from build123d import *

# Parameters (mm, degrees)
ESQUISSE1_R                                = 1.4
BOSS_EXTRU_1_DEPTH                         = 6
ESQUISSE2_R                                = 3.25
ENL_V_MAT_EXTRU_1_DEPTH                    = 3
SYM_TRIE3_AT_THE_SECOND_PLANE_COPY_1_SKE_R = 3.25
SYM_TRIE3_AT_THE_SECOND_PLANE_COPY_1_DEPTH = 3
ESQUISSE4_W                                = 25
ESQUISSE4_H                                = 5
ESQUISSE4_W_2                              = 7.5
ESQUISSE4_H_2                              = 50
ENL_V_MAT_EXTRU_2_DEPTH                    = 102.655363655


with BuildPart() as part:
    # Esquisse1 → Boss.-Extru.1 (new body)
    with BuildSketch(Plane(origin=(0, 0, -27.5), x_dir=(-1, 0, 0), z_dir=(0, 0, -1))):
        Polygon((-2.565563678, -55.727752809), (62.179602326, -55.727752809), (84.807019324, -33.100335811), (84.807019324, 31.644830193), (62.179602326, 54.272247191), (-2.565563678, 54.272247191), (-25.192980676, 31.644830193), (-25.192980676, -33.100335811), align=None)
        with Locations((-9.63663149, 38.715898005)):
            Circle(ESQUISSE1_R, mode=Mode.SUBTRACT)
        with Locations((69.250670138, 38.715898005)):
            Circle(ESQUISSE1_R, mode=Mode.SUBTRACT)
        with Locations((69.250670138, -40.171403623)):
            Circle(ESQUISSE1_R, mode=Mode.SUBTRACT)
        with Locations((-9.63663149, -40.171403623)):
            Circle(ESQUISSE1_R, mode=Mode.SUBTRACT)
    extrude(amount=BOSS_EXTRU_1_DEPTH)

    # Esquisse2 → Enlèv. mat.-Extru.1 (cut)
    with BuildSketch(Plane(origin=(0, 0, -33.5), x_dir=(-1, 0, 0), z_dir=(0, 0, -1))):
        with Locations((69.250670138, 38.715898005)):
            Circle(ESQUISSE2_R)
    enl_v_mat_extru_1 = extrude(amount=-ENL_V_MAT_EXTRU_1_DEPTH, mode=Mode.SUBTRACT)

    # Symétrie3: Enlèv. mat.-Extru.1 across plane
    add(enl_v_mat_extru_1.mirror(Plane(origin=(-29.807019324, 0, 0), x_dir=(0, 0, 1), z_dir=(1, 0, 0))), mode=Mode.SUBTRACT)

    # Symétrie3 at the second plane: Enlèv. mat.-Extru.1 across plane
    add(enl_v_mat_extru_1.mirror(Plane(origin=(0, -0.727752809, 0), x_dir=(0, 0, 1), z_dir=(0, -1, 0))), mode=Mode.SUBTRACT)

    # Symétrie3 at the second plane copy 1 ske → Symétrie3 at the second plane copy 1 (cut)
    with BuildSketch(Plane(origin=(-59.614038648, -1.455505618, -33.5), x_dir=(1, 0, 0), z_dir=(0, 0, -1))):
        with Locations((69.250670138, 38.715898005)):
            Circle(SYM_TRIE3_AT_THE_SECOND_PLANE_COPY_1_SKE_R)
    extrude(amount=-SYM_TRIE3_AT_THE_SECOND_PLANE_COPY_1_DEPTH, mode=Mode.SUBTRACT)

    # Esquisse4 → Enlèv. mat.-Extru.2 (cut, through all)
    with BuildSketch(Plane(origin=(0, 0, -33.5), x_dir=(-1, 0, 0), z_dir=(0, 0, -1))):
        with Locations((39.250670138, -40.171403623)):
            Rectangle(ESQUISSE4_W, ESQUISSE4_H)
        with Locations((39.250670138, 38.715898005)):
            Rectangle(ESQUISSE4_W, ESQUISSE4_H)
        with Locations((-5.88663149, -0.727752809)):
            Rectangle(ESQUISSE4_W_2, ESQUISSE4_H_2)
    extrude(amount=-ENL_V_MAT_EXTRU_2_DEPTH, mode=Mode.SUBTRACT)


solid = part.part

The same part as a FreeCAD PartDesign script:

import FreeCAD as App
import Part
import Sketcher

V = App.Vector


def add_polygon(sketch, points):
    """Adds a closed chain of lines whose ends are joined by coincident constraints."""
    first, n = sketch.GeometryCount, len(points)
    for a, b in zip(points, points[1:] + points[:1]):
        sketch.addGeometry(Part.LineSegment(App.Vector(*a, 0), App.Vector(*b, 0)), False)
    for i in range(n):
        sketch.addConstraint(Sketcher.Constraint("Coincident", first + i, 2, first + (i + 1) % n, 1))

doc = App.newDocument("Part")
body = doc.addObject("PartDesign::Body", "Body")

# Sketch on XY plane
sketch1 = body.newObject("Sketcher::SketchObject", "Sketch")
sketch1.AttachmentSupport = (doc.getObject("XY_Plane"), [""])
sketch1.MapMode = "FlatFace"
sketch1.AttachmentOffset = App.Placement(V(0, 0, -27.5), App.Rotation())
add_polygon(sketch1, [(2.565564, -55.727753), (-62.179602, -55.727753), (-84.807019, -33.100336), (-84.807019, 31.64483), (-62.179602, 54.272247), (2.565564, 54.272247), (25.192981, 31.64483), (25.192981, -33.100336)])  # lines 0-7
sketch1.addGeometry(Part.Circle(V(9.636631, -40.171404, 0), V(0, 0, 1), 1.4), False)  # 8
sketch1.addGeometry(Part.Circle(V(-69.25067, -40.171404, 0), V(0, 0, 1), 1.4), False)  # 9
sketch1.addGeometry(Part.Circle(V(9.636631, 38.715898, 0), V(0, 0, 1), 1.4), False)  # 10
sketch1.addGeometry(Part.Circle(V(-69.25067, 38.715898, 0), V(0, 0, 1), 1.4), False)  # 11
sketch1.addConstraint([
    Sketcher.Constraint("Horizontal", 0),
    Sketcher.Constraint("Vertical", 2),
    Sketcher.Constraint("Horizontal", 4),
    Sketcher.Constraint("Vertical", 6),
    Sketcher.Constraint("Equal", 8, 9),
    Sketcher.Constraint("Equal", 9, 10),
    Sketcher.Constraint("Equal", 10, 11),
    Sketcher.Constraint("Perpendicular", 1, 3),
    Sketcher.Constraint("Perpendicular", 3, 5),
    Sketcher.Constraint("Perpendicular", 5, 7),
    Sketcher.Constraint("Horizontal", 8, 3, 9, 3),
    Sketcher.Constraint("Horizontal", 10, 3, 11, 3),
    Sketcher.Constraint("Horizontal", 2, 2, 5, 2),
    Sketcher.Constraint("Horizontal", 1, 2, 6, 2),
    Sketcher.Constraint("Vertical", 8, 3, 10, 3),
    Sketcher.Constraint("Vertical", 9, 3, 11, 3),
    Sketcher.Constraint("Vertical", 0, 2, 3, 2),
    Sketcher.Constraint("Vertical", 4, 2, 7, 2),
    Sketcher.Constraint("Equal", 4, 2),
    Sketcher.Constraint("Diameter", 8, 2.8),
    Sketcher.Constraint("Distance", 1, 32.0),
    Sketcher.Constraint("DistanceY", -1, 1, 10, 3, 38.715898),
    Sketcher.Constraint("DistanceX", 9, 3, 8, 3, 78.887302),
    Sketcher.Constraint("DistanceY", 8, 3, 10, 3, 78.887302),
    Sketcher.Constraint("DistanceX", 0, 2, 0, 1, 64.745166),
    Sketcher.Constraint("DistanceX", -1, 1, 8, 3, 9.636631),
    Sketcher.Constraint("DistanceX", 1, 2, -1, 1, 84.807019),
    Sketcher.Constraint("DistanceY", -1, 1, 2, 2, 31.64483),
])
pad1 = body.newObject("PartDesign::Pad", "Pad")
pad1.Profile = sketch1
pad1.Length = 6
pad1.Reversed = True

# Sketch on XY plane
sketch2 = body.newObject("Sketcher::SketchObject", "Sketch001")
sketch2.AttachmentSupport = (doc.getObject("XY_Plane"), [""])
sketch2.MapMode = "FlatFace"
sketch2.AttachmentOffset = App.Placement(V(0, 0, -33.5), App.Rotation())
sketch2.addGeometry(Part.Circle(V(-69.25067, 38.715898, 0), V(0, 0, 1), 3.25), False)
sketch2.addConstraint([
    Sketcher.Constraint("Diameter", 0, 6.5),
    Sketcher.Constraint("DistanceY", -1, 1, 0, 3, 38.715898),
    Sketcher.Constraint("DistanceX", 0, 3, -1, 1, 69.25067),
])
pocket1 = body.newObject("PartDesign::Pocket", "Pocket")
pocket1.Profile = sketch2
pocket1.Length = 3
pocket1.Reversed = True
doc.recompute()

datumplane = body.newObject("PartDesign::Plane", "DatumPlane")
datumplane.AttachmentSupport = (doc.getObject("YZ_Plane"), [""])
datumplane.MapMode = "FlatFace"
datumplane.AttachmentOffset = App.Placement(V(0, 0, -29.807019), App.Rotation())
mirrored = body.newObject("PartDesign::Mirrored", "Mirrored")
mirrored.Originals = [pocket1]
mirrored.MirrorPlane = (datumplane, [""])
body.Tip = mirrored
doc.recompute()

datumplane2 = body.newObject("PartDesign::Plane", "DatumPlane001")
datumplane2.AttachmentSupport = (doc.getObject("XZ_Plane"), [""])
datumplane2.MapMode = "FlatFace"
datumplane2.AttachmentOffset = App.Placement(V(0, 0, 0.727753), App.Rotation())
mirrored2 = body.newObject("PartDesign::Mirrored", "Mirrored001")
mirrored2.Originals = [pocket1]
mirrored2.MirrorPlane = (datumplane2, [""])
body.Tip = mirrored2

# Sketch on XY plane
sketch3 = body.newObject("Sketcher::SketchObject", "Sketch002")
sketch3.AttachmentSupport = (doc.getObject("XY_Plane"), [""])
sketch3.MapMode = "FlatFace"
sketch3.AttachmentOffset = App.Placement(V(0, 0, -33.5), App.Rotation())
sketch3.addGeometry(Part.Circle(V(9.636631, -40.171404, 0), V(0, 0, 1), 3.25), False)
sketch3.addConstraint([
    Sketcher.Constraint("Diameter", 0, 6.5),
    Sketcher.Constraint("DistanceX", -1, 1, 0, 3, 9.636631),
    Sketcher.Constraint("DistanceY", 0, 3, -1, 1, 40.171404),
])
pocket2 = body.newObject("PartDesign::Pocket", "Pocket001")
pocket2.Profile = sketch3
pocket2.Length = 3
pocket2.Reversed = True

# Sketch on XY plane
sketch4 = body.newObject("Sketcher::SketchObject", "Sketch003")
sketch4.AttachmentSupport = (doc.getObject("XY_Plane"), [""])
sketch4.MapMode = "FlatFace"
sketch4.AttachmentOffset = App.Placement(V(0, 0, -33.5), App.Rotation())
add_polygon(sketch4, [(-26.75067, -37.671404), (-26.75067, -42.671404), (-51.75067, -42.671404), (-51.75067, -37.671404)])  # lines 0-3
add_polygon(sketch4, [(-26.75067, 41.215898), (-26.75067, 36.215898), (-51.75067, 36.215898), (-51.75067, 41.215898)])  # lines 4-7
add_polygon(sketch4, [(9.636631, 24.272247), (9.636631, -25.727753), (2.136631, -25.727753), (2.136631, 24.272247)])  # lines 8-11
sketch4.addConstraint([
    Sketcher.Constraint("Vertical", 0),
    Sketcher.Constraint("Horizontal", 1),
    Sketcher.Constraint("Vertical", 2),
    Sketcher.Constraint("Horizontal", 3),
    Sketcher.Constraint("Vertical", 4),
    Sketcher.Constraint("Horizontal", 5),
    Sketcher.Constraint("Vertical", 6),
    Sketcher.Constraint("Horizontal", 7),
    Sketcher.Constraint("Vertical", 8),
    Sketcher.Constraint("Horizontal", 9),
    Sketcher.Constraint("Vertical", 10),
    Sketcher.Constraint("Horizontal", 11),
    Sketcher.Constraint("Vertical", 3, 2, 4, 2),
    Sketcher.Constraint("Vertical", 2, 2, 5, 2),
    Sketcher.Constraint("Equal", 2, 4),
    Sketcher.Constraint("DistanceX", 1, 2, 1, 1, 25.0),
    Sketcher.Constraint("DistanceY", 0, 2, 0, 1, 5.0),
    Sketcher.Constraint("DistanceY", 8, 2, 8, 1, 50.0),
    Sketcher.Constraint("DistanceX", 9, 2, 9, 1, 7.5),
    Sketcher.Constraint("DistanceY", -1, 1, 4, 2, 36.215898),
    Sketcher.Constraint("DistanceY", 3, 2, 4, 2, 73.887302),
    Sketcher.Constraint("DistanceX", 3, 2, 8, 2, 36.387302),
    Sketcher.Constraint("DistanceX", 0, 2, -1, 1, 26.75067),
    Sketcher.Constraint("DistanceY", 3, 2, 8, 2, 11.943651),
])
pocket3 = body.newObject("PartDesign::Pocket", "Pocket002")
pocket3.Profile = sketch4
pocket3.Type = "ThroughAll"
pocket3.Reversed = True

doc.recompute()
